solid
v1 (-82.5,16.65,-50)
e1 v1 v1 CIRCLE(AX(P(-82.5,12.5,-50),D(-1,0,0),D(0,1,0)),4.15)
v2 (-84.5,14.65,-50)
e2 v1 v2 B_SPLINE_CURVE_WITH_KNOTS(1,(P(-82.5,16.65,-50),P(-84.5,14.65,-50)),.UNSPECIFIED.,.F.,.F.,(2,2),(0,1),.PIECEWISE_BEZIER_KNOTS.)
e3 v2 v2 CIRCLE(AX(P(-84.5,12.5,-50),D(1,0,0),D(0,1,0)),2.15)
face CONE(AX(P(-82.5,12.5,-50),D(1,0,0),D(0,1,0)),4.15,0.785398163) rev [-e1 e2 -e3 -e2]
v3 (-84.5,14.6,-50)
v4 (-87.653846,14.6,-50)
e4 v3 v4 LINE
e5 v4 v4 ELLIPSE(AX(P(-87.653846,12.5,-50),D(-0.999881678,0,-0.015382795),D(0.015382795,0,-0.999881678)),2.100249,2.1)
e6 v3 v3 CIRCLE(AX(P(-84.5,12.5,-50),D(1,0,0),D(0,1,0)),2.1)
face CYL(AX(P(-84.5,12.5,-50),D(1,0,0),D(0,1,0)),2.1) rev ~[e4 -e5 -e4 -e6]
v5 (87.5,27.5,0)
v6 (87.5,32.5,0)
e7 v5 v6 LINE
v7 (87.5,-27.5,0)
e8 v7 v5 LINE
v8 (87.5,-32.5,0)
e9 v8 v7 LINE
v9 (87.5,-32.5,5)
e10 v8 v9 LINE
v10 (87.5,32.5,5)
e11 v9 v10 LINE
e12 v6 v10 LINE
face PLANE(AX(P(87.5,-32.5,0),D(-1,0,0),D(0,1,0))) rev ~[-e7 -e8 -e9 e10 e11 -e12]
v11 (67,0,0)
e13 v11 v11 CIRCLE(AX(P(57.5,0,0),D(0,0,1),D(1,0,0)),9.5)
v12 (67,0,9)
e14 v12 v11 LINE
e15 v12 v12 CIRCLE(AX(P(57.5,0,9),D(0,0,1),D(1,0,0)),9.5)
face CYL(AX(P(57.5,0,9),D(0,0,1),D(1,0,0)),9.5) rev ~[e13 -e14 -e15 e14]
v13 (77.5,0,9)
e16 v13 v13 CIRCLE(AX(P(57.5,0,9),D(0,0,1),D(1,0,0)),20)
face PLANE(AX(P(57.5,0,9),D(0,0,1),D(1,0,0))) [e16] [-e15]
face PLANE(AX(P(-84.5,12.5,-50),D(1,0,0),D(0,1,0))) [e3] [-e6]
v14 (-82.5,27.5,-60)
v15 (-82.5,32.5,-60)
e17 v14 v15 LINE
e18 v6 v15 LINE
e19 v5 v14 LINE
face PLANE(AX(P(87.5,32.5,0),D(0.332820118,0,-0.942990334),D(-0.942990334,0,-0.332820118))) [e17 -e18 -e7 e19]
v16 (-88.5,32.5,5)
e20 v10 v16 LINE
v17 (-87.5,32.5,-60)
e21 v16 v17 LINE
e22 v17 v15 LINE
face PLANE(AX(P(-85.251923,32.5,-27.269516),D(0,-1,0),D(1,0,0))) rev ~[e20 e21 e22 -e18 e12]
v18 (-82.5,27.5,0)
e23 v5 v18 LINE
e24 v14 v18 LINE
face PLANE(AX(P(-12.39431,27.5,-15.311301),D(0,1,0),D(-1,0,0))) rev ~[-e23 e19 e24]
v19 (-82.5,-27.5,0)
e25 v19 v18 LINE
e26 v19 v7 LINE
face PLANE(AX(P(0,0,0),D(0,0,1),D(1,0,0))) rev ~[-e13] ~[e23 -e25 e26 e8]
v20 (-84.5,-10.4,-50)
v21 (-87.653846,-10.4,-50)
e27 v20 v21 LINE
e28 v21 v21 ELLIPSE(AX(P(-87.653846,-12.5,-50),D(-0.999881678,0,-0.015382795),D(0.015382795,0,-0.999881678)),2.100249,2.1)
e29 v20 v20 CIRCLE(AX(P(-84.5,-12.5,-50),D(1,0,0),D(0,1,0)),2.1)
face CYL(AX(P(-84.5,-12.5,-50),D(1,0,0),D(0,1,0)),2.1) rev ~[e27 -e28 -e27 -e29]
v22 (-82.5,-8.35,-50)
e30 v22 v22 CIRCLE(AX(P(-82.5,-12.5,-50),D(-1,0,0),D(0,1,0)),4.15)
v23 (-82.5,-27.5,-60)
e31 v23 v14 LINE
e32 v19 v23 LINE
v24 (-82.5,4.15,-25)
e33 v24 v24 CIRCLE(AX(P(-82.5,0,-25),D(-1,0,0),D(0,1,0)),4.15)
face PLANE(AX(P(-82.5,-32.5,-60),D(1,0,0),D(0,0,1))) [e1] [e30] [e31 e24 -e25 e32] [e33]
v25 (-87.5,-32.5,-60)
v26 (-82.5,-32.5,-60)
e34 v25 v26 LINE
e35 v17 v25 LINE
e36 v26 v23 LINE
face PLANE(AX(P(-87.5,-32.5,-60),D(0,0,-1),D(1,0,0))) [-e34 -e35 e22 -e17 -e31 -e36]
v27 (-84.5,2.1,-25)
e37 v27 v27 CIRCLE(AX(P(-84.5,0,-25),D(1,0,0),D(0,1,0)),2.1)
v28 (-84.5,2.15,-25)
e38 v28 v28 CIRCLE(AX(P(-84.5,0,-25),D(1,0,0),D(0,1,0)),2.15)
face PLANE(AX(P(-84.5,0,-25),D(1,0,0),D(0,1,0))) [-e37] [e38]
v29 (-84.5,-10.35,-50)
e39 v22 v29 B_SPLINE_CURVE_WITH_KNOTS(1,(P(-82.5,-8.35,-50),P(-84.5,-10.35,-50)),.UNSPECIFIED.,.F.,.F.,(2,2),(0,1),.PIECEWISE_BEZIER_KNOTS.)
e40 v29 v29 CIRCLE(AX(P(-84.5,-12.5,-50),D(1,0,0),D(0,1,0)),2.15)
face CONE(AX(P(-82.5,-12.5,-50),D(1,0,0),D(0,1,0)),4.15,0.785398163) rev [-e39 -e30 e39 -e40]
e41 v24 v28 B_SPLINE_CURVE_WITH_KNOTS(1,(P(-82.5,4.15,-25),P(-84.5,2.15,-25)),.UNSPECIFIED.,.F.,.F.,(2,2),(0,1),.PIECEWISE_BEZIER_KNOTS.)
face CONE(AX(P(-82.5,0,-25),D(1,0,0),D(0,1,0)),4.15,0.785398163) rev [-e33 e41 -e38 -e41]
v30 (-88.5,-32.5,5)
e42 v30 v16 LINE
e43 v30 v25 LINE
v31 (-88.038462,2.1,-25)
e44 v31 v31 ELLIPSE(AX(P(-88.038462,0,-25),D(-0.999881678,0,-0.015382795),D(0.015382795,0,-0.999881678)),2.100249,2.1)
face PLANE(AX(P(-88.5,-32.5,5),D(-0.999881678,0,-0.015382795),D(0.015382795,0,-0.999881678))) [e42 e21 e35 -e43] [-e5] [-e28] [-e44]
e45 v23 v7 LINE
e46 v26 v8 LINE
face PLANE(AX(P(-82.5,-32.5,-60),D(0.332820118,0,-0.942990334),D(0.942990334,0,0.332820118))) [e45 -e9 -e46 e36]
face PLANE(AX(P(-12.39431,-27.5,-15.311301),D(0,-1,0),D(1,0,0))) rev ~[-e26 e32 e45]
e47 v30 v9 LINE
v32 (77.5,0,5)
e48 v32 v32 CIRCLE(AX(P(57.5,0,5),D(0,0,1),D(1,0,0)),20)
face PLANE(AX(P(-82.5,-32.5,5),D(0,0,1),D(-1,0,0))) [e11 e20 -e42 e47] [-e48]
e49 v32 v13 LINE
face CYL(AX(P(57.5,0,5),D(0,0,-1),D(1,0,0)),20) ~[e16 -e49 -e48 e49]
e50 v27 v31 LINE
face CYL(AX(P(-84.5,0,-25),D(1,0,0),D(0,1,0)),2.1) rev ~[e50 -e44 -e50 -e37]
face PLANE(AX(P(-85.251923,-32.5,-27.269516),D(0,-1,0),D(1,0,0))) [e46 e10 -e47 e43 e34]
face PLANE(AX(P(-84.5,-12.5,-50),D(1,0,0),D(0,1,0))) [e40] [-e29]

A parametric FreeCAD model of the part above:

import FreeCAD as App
import Part
import Sketcher

V = App.Vector
Q = App.Units.Quantity

doc = App.newDocument("Part")
body = doc.addObject("PartDesign::Body", "Body")

# Sketch on XY plane
sketch1 = doc.addObject("Sketcher::SketchObject", "Sketch")
body.addObject(sketch1)
sketch1.AttachmentSupport = (doc.XY_Plane, [""])
sketch1.MapMode = "FlatFace"
sketch1.addGeometry([
    Part.LineSegment(V(-88, 32, 0), V(-88, -32, 0)),
    Part.LineSegment(V(-88, -32, 0), V(88, -32, 0)),
    Part.LineSegment(V(88, -32, 0), V(88, 32, 0)),
    Part.LineSegment(V(88, 32, 0), V(-88, 32, 0)),
], False)
sketch1.addConstraint([
    Sketcher.Constraint("Coincident", 0, 2, 1, 1),
    Sketcher.Constraint("Coincident", 1, 2, 2, 1),
    Sketcher.Constraint("Coincident", 2, 2, 3, 1),
    Sketcher.Constraint("Coincident", 3, 2, 0, 1),
    Sketcher.Constraint("Vertical", 0),
    Sketcher.Constraint("Horizontal", 1),
    Sketcher.Constraint("Vertical", 2),
    Sketcher.Constraint("Horizontal", 3),
    Sketcher.Constraint("Symmetric", 0, 2, 2, 2, -1, 1),
    Sketcher.Constraint("DistanceX", 1, 1, 1, 2, Q("175 mm")),
    Sketcher.Constraint("DistanceY", 0, 2, 0, 1, Q("65 mm")),
])
pad1 = doc.addObject("PartDesign::Pad", "Pad")
body.addObject(pad1)
pad1.Profile = sketch1
pad1.Length = 5

# Sketch on XY plane
sketch2 = doc.addObject("Sketcher::SketchObject", "Sketch001")
body.addObject(sketch2)
sketch2.AttachmentSupport = (doc.XY_Plane, [""])
sketch2.MapMode = "FlatFace"
sketch2.AttachmentOffset = App.Placement(V(0, 0, 5), App.Rotation())
sketch2.addGeometry(Part.Circle(V(58, 0, 0), V(0, 0, 1), 20), False)
sketch2.addConstraint([
    Sketcher.Constraint("PointOnObject", 0, 3, -1),
    Sketcher.Constraint("Diameter", 0, Q("40 mm")),
    Sketcher.Constraint("DistanceX", -1, 1, 0, 3, Q("57.5 mm")),
])
pad2 = doc.addObject("PartDesign::Pad", "Pad001")
body.addObject(pad2)
pad2.Profile = sketch2
pad2.Length = 4

# Sketch on XY plane
sketch3 = doc.addObject("Sketcher::SketchObject", "Sketch002")
body.addObject(sketch3)
sketch3.AttachmentSupport = (doc.XY_Plane, [""])
sketch3.MapMode = "FlatFace"
sketch3.AttachmentOffset = App.Placement(V(0, 0, 9), App.Rotation())
sketch3.addGeometry(Part.Circle(V(58, 0, 0), V(0, 0, 1), 10), False)
sketch3.addConstraint([
    Sketcher.Constraint("PointOnObject", 0, 3, -1),
    Sketcher.Constraint("Diameter", 0, Q("19 mm")),
    Sketcher.Constraint("DistanceX", -1, 1, 0, 3, Q("57.5 mm")),
])
pocket1 = doc.addObject("PartDesign::Pocket", "Pocket")
body.addObject(pocket1)
pocket1.Profile = sketch3
pocket1.Length = 9.01

# Sketch on XZ plane
sketch4 = doc.addObject("Sketcher::SketchObject", "Sketch003")
body.addObject(sketch4)
sketch4.AttachmentSupport = (doc.XZ_Plane, [""])
sketch4.MapMode = "FlatFace"
sketch4.AttachmentOffset = App.Placement(V(0, 0, 32.5), App.Rotation())
sketch4.addGeometry([
    Part.LineSegment(V(-88, 5, 0), V(-88, -60, 0)),
    Part.LineSegment(V(-88, -60, 0), V(-82, -60, 0)),
    Part.LineSegment(V(-82, -60, 0), V(-82, 5, 0)),
    Part.LineSegment(V(-82, 5, 0), V(-88, 5, 0)),
], False)
sketch4.addConstraint([
    Sketcher.Constraint("Coincident", 0, 2, 1, 1),
    Sketcher.Constraint("Coincident", 1, 2, 2, 1),
    Sketcher.Constraint("Coincident", 2, 2, 3, 1),
    Sketcher.Constraint("Coincident", 3, 2, 0, 1),
    Sketcher.Constraint("Horizontal", 1),
    Sketcher.Constraint("Vertical", 2),
    Sketcher.Constraint("Horizontal", 3),
    Sketcher.Constraint("DistanceX", 1, 1, 1, 2, Q("5 mm")),
    Sketcher.Constraint("DistanceX", 3, 2, 3, 1, Q("6 mm")),
    Sketcher.Constraint("DistanceY", 2, 1, 2, 2, Q("65 mm")),
    Sketcher.Constraint("DistanceY", 0, 2, -1, 1, Q("60 mm")),
    Sketcher.Constraint("DistanceX", 0, 2, -1, 1, Q("87.5 mm")),
])
pad3 = doc.addObject("PartDesign::Pad", "Pad002")
body.addObject(pad3)
pad3.Profile = sketch4
pad3.Length = 65
pad3.Reversed = True

# Sketch on XZ plane
sketch5 = doc.addObject("Sketcher::SketchObject", "Sketch004")
body.addObject(sketch5)
sketch5.AttachmentSupport = (doc.XZ_Plane, [""])
sketch5.MapMode = "FlatFace"
sketch5.AttachmentOffset = App.Placement(V(0, 0, -32.5), App.Rotation())
sketch5.addGeometry([
    Part.LineSegment(V(88, 5, 0), V(88, 0, 0)),  # 0
    Part.LineSegment(V(88, 0, 0), V(-82, -60, 0)),  # 1
    Part.LineSegment(V(-82, -60, 0), V(-88, -60, 0)),  # 2
    Part.LineSegment(V(-88, -60, 0), V(-88, 5, 0)),  # 3
    Part.LineSegment(V(-88, 5, 0), V(88, 5, 0)),  # 4
], False)
sketch5.addConstraint([
    Sketcher.Constraint("Coincident", 0, 2, 1, 1),
    Sketcher.Constraint("Coincident", 1, 2, 2, 1),
    Sketcher.Constraint("Coincident", 2, 2, 3, 1),
    Sketcher.Constraint("Coincident", 3, 2, 4, 1),
    Sketcher.Constraint("Coincident", 4, 2, 0, 1),
    Sketcher.Constraint("Vertical", 0),
    Sketcher.Constraint("Horizontal", 2),
    Sketcher.Constraint("Horizontal", 4),
    Sketcher.Constraint("PointOnObject", 0, 2, -1),
    Sketcher.Constraint("Equal", 2, 0),
    Sketcher.Constraint("DistanceX", 2, 2, 2, 1, Q("5 mm")),
    Sketcher.Constraint("DistanceX", 4, 1, 4, 2, Q("176 mm")),
    Sketcher.Constraint("DistanceY", 1, 2, -1, 1, Q("60 mm")),
    Sketcher.Constraint("DistanceX", 1, 2, 0, 2, Q("170 mm")),
    Sketcher.Constraint("DistanceX", -1, 1, 0, 2, Q("87.5 mm")),
])
pad4 = doc.addObject("PartDesign::Pad", "Pad003")
body.addObject(pad4)
pad4.Profile = sketch5
pad4.Length = 5

# Sketch on XZ plane
sketch6 = doc.addObject("Sketcher::SketchObject", "Sketch005")
body.addObject(sketch6)
sketch6.AttachmentSupport = (doc.XZ_Plane, [""])
sketch6.MapMode = "FlatFace"
sketch6.AttachmentOffset = App.Placement(V(0, 0, 32.5), App.Rotation())
sketch6.addGeometry([
    Part.LineSegment(V(-88, 5, 0), V(-88, -60, 0)),  # 0
    Part.LineSegment(V(-88, -60, 0), V(-82, -60, 0)),  # 1
    Part.LineSegment(V(-82, -60, 0), V(88, 0, 0)),  # 2
    Part.LineSegment(V(88, 0, 0), V(88, 5, 0)),  # 3
    Part.LineSegment(V(88, 5, 0), V(-88, 5, 0)),  # 4
], False)
sketch6.addConstraint([
    Sketcher.Constraint("Coincident", 0, 2, 1, 1),
    Sketcher.Constraint("Coincident", 1, 2, 2, 1),
    Sketcher.Constraint("Coincident", 2, 2, 3, 1),
    Sketcher.Constraint("Coincident", 3, 2, 4, 1),
    Sketcher.Constraint("Coincident", 4, 2, 0, 1),
    Sketcher.Constraint("Horizontal", 1),
    Sketcher.Constraint("Vertical", 3),
    Sketcher.Constraint("Horizontal", 4),
    Sketcher.Constraint("PointOnObject", 2, 2, -1),
    Sketcher.Constraint("Equal", 1, 3),
    Sketcher.Constraint("DistanceX", 1, 1, 1, 2, Q("5 mm")),
    Sketcher.Constraint("DistanceX", 4, 2, 4, 1, Q("176 mm")),
    Sketcher.Constraint("DistanceY", 0, 2, -1, 1, Q("60 mm")),
    Sketcher.Constraint("DistanceX", 1, 2, 2, 2, Q("170 mm")),
    Sketcher.Constraint("DistanceX", 0, 2, -1, 1, Q("87.5 mm")),
])
pad5 = doc.addObject("PartDesign::Pad", "Pad004")
body.addObject(pad5)
pad5.Profile = sketch6
pad5.Length = 5
pad5.Reversed = True

# Sketch on YZ plane
sketch7 = doc.addObject("Sketcher::SketchObject", "Sketch006")
body.addObject(sketch7)
sketch7.AttachmentSupport = (doc.YZ_Plane, [""])
sketch7.MapMode = "FlatFace"
sketch7.AttachmentOffset = App.Placement(V(0, 0, -82.5), App.Rotation())
sketch7.addGeometry([
    Part.Circle(V(0, -25, 0), V(0, 0, 1), 4.2),
    Part.Circle(V(-12.5, -50, 0), V(0, 0, 1), 4.2),
    Part.Circle(V(12.5, -50, 0), V(0, 0, 1), 4.2),
], False)
sketch7.addConstraint([
    Sketcher.Constraint("Equal", 0, 1),
    Sketcher.Constraint("Equal", 1, 2),
    Sketcher.Constraint("Symmetric", 1, 3, 2, 3, -2),
    Sketcher.Constraint("PointOnObject", 0, 3, -2),
    Sketcher.Constraint("Diameter", 0, Q("8.3 mm")),
    Sketcher.Constraint("DistanceY", 0, 3, -1, 1, Q("25 mm")),
    Sketcher.Constraint("DistanceY", 1, 3, -1, 1, Q("50 mm")),
    Sketcher.Constraint("DistanceX", 1, 3, 2, 3, Q("25 mm")),
])
pocket2 = doc.addObject("PartDesign::Pocket", "Pocket001")
body.addObject(pocket2)
pocket2.Profile = sketch7
pocket2.Length = 2
pocket2.TaperAngle = -45

# Sketch on YZ plane
sketch8 = doc.addObject("Sketcher::SketchObject", "Sketch007")
body.addObject(sketch8)
sketch8.AttachmentSupport = (doc.YZ_Plane, [""])
sketch8.MapMode = "FlatFace"
sketch8.AttachmentOffset = App.Placement(V(0, 0, -84.5), App.Rotation())
sketch8.addGeometry([
    Part.Circle(V(0, -25, 0), V(0, 0, 1), 2.1),
    Part.Circle(V(12.5, -50, 0), V(0, 0, 1), 2.1),
    Part.Circle(V(-12.5, -50, 0), V(0, 0, 1), 2.1),
], False)
sketch8.addConstraint([
    Sketcher.Constraint("Equal", 0, 1),
    Sketcher.Constraint("Equal", 1, 2),
    Sketcher.Constraint("Symmetric", 1, 3, 2, 3, -2),
    Sketcher.Constraint("PointOnObject", 0, 3, -2),
    Sketcher.Constraint("Diameter", 0, Q("4.2 mm")),
    Sketcher.Constraint("DistanceY", 0, 3, -1, 1, Q("25 mm")),
    Sketcher.Constraint("DistanceY", 1, 3, -1, 1, Q("50 mm")),
    Sketcher.Constraint("DistanceX", 2, 3, 1, 3, Q("25 mm")),
])
pocket3 = doc.addObject("PartDesign::Pocket", "Pocket002")
body.addObject(pocket3)
pocket3.Profile = sketch8
pocket3.Length = 5

doc.recompute()
